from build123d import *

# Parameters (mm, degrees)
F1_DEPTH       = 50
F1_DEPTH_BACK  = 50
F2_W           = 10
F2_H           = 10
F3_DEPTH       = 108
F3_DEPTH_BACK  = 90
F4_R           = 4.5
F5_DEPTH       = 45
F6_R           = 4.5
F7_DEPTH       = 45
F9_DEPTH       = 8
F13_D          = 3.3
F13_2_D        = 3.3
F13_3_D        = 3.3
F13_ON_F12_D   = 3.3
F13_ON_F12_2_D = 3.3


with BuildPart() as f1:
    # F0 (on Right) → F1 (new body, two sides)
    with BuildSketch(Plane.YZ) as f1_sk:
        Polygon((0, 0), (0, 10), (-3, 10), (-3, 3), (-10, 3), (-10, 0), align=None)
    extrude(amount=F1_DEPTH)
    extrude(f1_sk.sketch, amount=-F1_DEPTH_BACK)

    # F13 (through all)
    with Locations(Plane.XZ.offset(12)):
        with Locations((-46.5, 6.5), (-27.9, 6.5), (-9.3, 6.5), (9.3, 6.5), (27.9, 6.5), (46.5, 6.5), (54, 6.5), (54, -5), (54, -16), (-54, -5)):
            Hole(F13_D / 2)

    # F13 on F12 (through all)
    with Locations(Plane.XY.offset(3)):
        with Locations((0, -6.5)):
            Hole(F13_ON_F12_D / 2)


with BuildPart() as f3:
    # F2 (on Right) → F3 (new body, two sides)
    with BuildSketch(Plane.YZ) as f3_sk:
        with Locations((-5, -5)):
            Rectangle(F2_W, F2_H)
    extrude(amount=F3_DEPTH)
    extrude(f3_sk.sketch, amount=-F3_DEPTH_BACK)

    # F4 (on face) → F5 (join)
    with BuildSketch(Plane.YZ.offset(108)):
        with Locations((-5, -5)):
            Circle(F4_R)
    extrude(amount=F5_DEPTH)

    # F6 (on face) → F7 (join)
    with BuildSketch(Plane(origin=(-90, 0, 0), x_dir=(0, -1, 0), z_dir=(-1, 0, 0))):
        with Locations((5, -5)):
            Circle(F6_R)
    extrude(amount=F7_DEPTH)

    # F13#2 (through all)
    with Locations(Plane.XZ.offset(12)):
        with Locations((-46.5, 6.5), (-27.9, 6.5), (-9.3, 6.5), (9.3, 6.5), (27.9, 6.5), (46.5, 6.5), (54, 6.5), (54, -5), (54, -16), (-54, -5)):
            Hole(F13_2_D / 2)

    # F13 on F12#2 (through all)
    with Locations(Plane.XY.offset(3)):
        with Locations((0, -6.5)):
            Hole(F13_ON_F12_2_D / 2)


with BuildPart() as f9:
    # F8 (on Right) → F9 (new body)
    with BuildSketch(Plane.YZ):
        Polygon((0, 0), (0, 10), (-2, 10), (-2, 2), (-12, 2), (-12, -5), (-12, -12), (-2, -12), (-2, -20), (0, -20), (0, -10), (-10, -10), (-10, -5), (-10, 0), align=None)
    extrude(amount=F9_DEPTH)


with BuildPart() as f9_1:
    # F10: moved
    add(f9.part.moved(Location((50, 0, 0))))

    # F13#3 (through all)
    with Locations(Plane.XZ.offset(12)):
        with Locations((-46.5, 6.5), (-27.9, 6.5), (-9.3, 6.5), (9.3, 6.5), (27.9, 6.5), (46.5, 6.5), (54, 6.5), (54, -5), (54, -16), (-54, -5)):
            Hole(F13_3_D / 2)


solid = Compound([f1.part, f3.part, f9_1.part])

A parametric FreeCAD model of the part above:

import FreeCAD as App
import Part
import Sketcher
from FreeCAD import Vector

doc = App.newDocument("Part")
body = doc.addObject("PartDesign::Body", "Body")

# Sketch on YZ plane
sketch1 = doc.addObject("Sketcher::SketchObject", "Sketch")
body.addObject(sketch1)
sketch1.AttachmentSupport = (doc.YZ_Plane, [""])
sketch1.MapMode = "FlatFace"
sketch1.addGeometry(Part.LineSegment(Vector(0, 0, 0), Vector(0, 10, 0)), False)
sketch1.addGeometry(Part.LineSegment(Vector(0, 10, 0), Vector(-3, 10, 0)), False)
sketch1.addGeometry(Part.LineSegment(Vector(-3, 10, 0), Vector(-3, 3, 0)), False)
sketch1.addGeometry(Part.LineSegment(Vector(-3, 3, 0), Vector(-10, 3, 0)), False)
sketch1.addGeometry(Part.LineSegment(Vector(-10, 3, 0), Vector(-10, 0, 0)), False)
sketch1.addGeometry(Part.LineSegment(Vector(-10, 0, 0), Vector(0, 0, 0)), False)
sketch1.addConstraint(Sketcher.Constraint("Coincident", 0, 2, 1, 1))
sketch1.addConstraint(Sketcher.Constraint("Coincident", 1, 2, 2, 1))
sketch1.addConstraint(Sketcher.Constraint("Coincident", 2, 2, 3, 1))
sketch1.addConstraint(Sketcher.Constraint("Coincident", 3, 2, 4, 1))
sketch1.addConstraint(Sketcher.Constraint("Coincident", 4, 2, 5, 1))
sketch1.addConstraint(Sketcher.Constraint("Coincident", 5, 2, 0, 1))
sketch1.addConstraint(Sketcher.Constraint("Vertical", 0))
sketch1.addConstraint(Sketcher.Constraint("Horizontal", 1))
sketch1.addConstraint(Sketcher.Constraint("Vertical", 2))
sketch1.addConstraint(Sketcher.Constraint("Horizontal", 3))
sketch1.addConstraint(Sketcher.Constraint("Vertical", 4))
sketch1.addConstraint(Sketcher.Constraint("Horizontal", 5))
sketch1.addConstraint(Sketcher.Constraint("Coincident", 5, 2, -1, 1))
sketch1.addConstraint(Sketcher.Constraint("Equal", 5, 0))
sketch1.addConstraint(Sketcher.Constraint("Equal", 3, 2))
sketch1.addConstraint(Sketcher.Constraint("DistanceX", 1, 2, 1, 1, 3.0))
sketch1.addConstraint(Sketcher.Constraint("DistanceX", 3, 2, 3, 1, 7.0))
pad1 = doc.addObject("PartDesign::Pad", "Pad")
body.addObject(pad1)
pad1.Profile = sketch1
pad1.Type = "TwoLengths"
pad1.Length = 50
pad1.Length2 = 50

# Sketch on XZ plane
sketch2 = doc.addObject("Sketcher::SketchObject", "Sketch001")
body.addObject(sketch2)
sketch2.AttachmentSupport = (doc.XZ_Plane, [""])
sketch2.MapMode = "FlatFace"
sketch2.AttachmentOffset = App.Placement(Vector(0, 0, 12), App.Rotation())
sketch2.addGeometry(Part.Circle(Vector(-46.5, 6.5, 0), Vector(0, 0, 1), 1.65), False)
sketch2.addGeometry(Part.Circle(Vector(-27.9, 6.5, 0), Vector(0, 0, 1), 1.65), False)
sketch2.addGeometry(Part.Circle(Vector(-9.3, 6.5, 0), Vector(0, 0, 1), 1.65), False)
sketch2.addGeometry(Part.Circle(Vector(9.3, 6.5, 0), Vector(0, 0, 1), 1.65), False)
sketch2.addGeometry(Part.Circle(Vector(27.9, 6.5, 0), Vector(0, 0, 1), 1.65), False)
sketch2.addGeometry(Part.Circle(Vector(46.5, 6.5, 0), Vector(0, 0, 1), 1.65), False)
sketch2.addGeometry(Part.Circle(Vector(54, 6.5, 0), Vector(0, 0, 1), 1.65), False)
sketch2.addGeometry(Part.Circle(Vector(54, -5, 0), Vector(0, 0, 1), 1.65), False)
sketch2.addGeometry(Part.Circle(Vector(54, -16, 0), Vector(0, 0, 1), 1.65), False)
sketch2.addGeometry(Part.Circle(Vector(-54, -5, 0), Vector(0, 0, 1), 1.65), False)
sketch2.addConstraint(Sketcher.Constraint("Equal", 0, 1))
sketch2.addConstraint(Sketcher.Constraint("Equal", 1, 2))
sketch2.addConstraint(Sketcher.Constraint("Equal", 2, 3))
sketch2.addConstraint(Sketcher.Constraint("Equal", 3, 4))
sketch2.addConstraint(Sketcher.Constraint("Equal", 4, 5))
sketch2.addConstraint(Sketcher.Constraint("Equal", 5, 6))
sketch2.addConstraint(Sketcher.Constraint("Equal", 6, 7))
sketch2.addConstraint(Sketcher.Constraint("Equal", 7, 8))
sketch2.addConstraint(Sketcher.Constraint("Equal", 8, 9))
sketch2.addConstraint(Sketcher.Constraint("Symmetric", 2, 3, 3, 3, -2))
sketch2.addConstraint(Sketcher.Constraint("Symmetric", 1, 3, 4, 3, -2))
sketch2.addConstraint(Sketcher.Constraint("Symmetric", 0, 3, 5, 3, -2))
sketch2.addConstraint(Sketcher.Constraint("Symmetric", 7, 3, 9, 3, -2))
sketch2.addConstraint(Sketcher.Constraint("Horizontal", 0, 3, 1, 3))
sketch2.addConstraint(Sketcher.Constraint("Horizontal", 1, 3, 2, 3))
sketch2.addConstraint(Sketcher.Constraint("Horizontal", 5, 3, 6, 3))
sketch2.addConstraint(Sketcher.Constraint("Vertical", 6, 3, 7, 3))
sketch2.addConstraint(Sketcher.Constraint("Vertical", 7, 3, 8, 3))
sketch2.addConstraint(Sketcher.Constraint("Diameter", 0, 3.3))
sketch2.addConstraint(Sketcher.Constraint("DistanceX", -1, 1, 6, 3, 54.0))
sketch2.addConstraint(Sketcher.Constraint("DistanceY", 7, 3, -1, 1, 5.0))
sketch2.addConstraint(Sketcher.Constraint("DistanceY", 8, 3, -1, 1, 16.0))
sketch2.addConstraint(Sketcher.Constraint("DistanceX", 0, 3, 5, 3, 93.0))
sketch2.addConstraint(Sketcher.Constraint("DistanceY", -1, 1, 0, 3, 6.5))
sketch2.addConstraint(Sketcher.Constraint("DistanceX", 1, 3, -1, 1, 27.9))
sketch2.addConstraint(Sketcher.Constraint("DistanceX", 2, 3, -1, 1, 9.3))
doc.recompute()
hole = doc.addObject("PartDesign::Hole", "Hole")
body.addObject(hole)
hole.Profile = sketch2
hole.ThreadType = "None"
hole.Diameter = 3.3
hole.DepthType = "ThroughAll"

# Sketch on XY plane
sketch3 = doc.addObject("Sketcher::SketchObject", "Sketch002")
body.addObject(sketch3)
sketch3.AttachmentSupport = (doc.XY_Plane, [""])
sketch3.MapMode = "FlatFace"
sketch3.AttachmentOffset = App.Placement(Vector(0, 0, 3), App.Rotation())
sketch3.addGeometry(Part.Circle(Vector(0, -6.5, 0), Vector(0, 0, 1), 1.65), False)
sketch3.addConstraint(Sketcher.Constraint("PointOnObject", 0, 3, -2))
sketch3.addConstraint(Sketcher.Constraint("Diameter", 0, 3.3))
sketch3.addConstraint(Sketcher.Constraint("DistanceY", 0, 3, -1, 1, 6.5))
doc.recompute()
hole2 = doc.addObject("PartDesign::Hole", "Hole001")
body.addObject(hole2)
hole2.Profile = sketch3
hole2.ThreadType = "None"
hole2.Diameter = 3.3
hole2.DepthType = "ThroughAll"
body2 = doc.addObject("PartDesign::Body", "Body001")

# Sketch on YZ plane
sketch4 = doc.addObject("Sketcher::SketchObject", "Sketch003")
body2.addObject(sketch4)
sketch4.AttachmentSupport = (doc.getObject("YZ_Plane001"), [""])
sketch4.MapMode = "FlatFace"
sketch4.addGeometry(Part.LineSegment(Vector(-10, 0, 0), Vector(-10, -10, 0)), False)
sketch4.addGeometry(Part.LineSegment(Vector(-10, -10, 0), Vector(0, -10, 0)), False)
sketch4.addGeometry(Part.LineSegment(Vector(0, -10, 0), Vector(0, 0, 0)), False)
sketch4.addGeometry(Part.LineSegment(Vector(0, 0, 0), Vector(-10, 0, 0)), False)
sketch4.addConstraint(Sketcher.Constraint("Coincident", 0, 2, 1, 1))
sketch4.addConstraint(Sketcher.Constraint("Coincident", 1, 2, 2, 1))
sketch4.addConstraint(Sketcher.Constraint("Coincident", 2, 2, 3, 1))
sketch4.addConstraint(Sketcher.Constraint("Coincident", 3, 2, 0, 1))
sketch4.addConstraint(Sketcher.Constraint("Vertical", 0))
sketch4.addConstraint(Sketcher.Constraint("Horizontal", 1))
sketch4.addConstraint(Sketcher.Constraint("Vertical", 2))
sketch4.addConstraint(Sketcher.Constraint("Horizontal", 3))
sketch4.addConstraint(Sketcher.Constraint("Coincident", 2, 2, -1, 1))
sketch4.addConstraint(Sketcher.Constraint("Equal", 3, 0))
sketch4.addConstraint(Sketcher.Constraint("DistanceX", 1, 1, 1, 2, 10.0))
pad2 = doc.addObject("PartDesign::Pad", "Pad001")
body2.addObject(pad2)
pad2.Profile = sketch4
pad2.Type = "TwoLengths"
pad2.Length = 108
pad2.Length2 = 90

# Sketch on YZ plane
sketch5 = doc.addObject("Sketcher::SketchObject", "Sketch004")
body2.addObject(sketch5)
sketch5.AttachmentSupport = (doc.getObject("YZ_Plane001"), [""])
sketch5.MapMode = "FlatFace"
sketch5.AttachmentOffset = App.Placement(Vector(0, 0, 108), App.Rotation())
sketch5.addGeometry(Part.Circle(Vector(-5, -5, 0), Vector(0, 0, 1), 4.5), False)
sketch5.addConstraint(Sketcher.Constraint("Diameter", 0, 9.0))
sketch5.addConstraint(Sketcher.Constraint("DistanceX", 0, 3, -1, 1, 5.0))
sketch5.addConstraint(Sketcher.Constraint("DistanceY", 0, 3, -1, 1, 5.0))
pad3 = doc.addObject("PartDesign::Pad", "Pad002")
body2.addObject(pad3)
pad3.Profile = sketch5
pad3.Length = 45

# Sketch on YZ plane
sketch6 = doc.addObject("Sketcher::SketchObject", "Sketch005")
body2.addObject(sketch6)
sketch6.AttachmentSupport = (doc.getObject("YZ_Plane001"), [""])
sketch6.MapMode = "FlatFace"
sketch6.AttachmentOffset = App.Placement(Vector(0, 0, -90), App.Rotation())
sketch6.addGeometry(Part.Circle(Vector(-5, -5, 0), Vector(0, 0, 1), 4.5), False)
sketch6.addConstraint(Sketcher.Constraint("Diameter", 0, 9.0))
sketch6.addConstraint(Sketcher.Constraint("DistanceX", 0, 3, -1, 1, 5.0))
sketch6.addConstraint(Sketcher.Constraint("DistanceY", 0, 3, -1, 1, 5.0))
pad4 = doc.addObject("PartDesign::Pad", "Pad003")
body2.addObject(pad4)
pad4.Profile = sketch6
pad4.Length = 45
pad4.Reversed = True

# Sketch on XZ plane
sketch7 = doc.addObject("Sketcher::SketchObject", "Sketch006")
body2.addObject(sketch7)
sketch7.AttachmentSupport = (doc.getObject("XZ_Plane001"), [""])
sketch7.MapMode = "FlatFace"
sketch7.AttachmentOffset = App.Placement(Vector(0, 0, 12), App.Rotation())
sketch7.addGeometry(Part.Circle(Vector(-46.5, 6.5, 0), Vector(0, 0, 1), 1.65), False)
sketch7.addGeometry(Part.Circle(Vector(-27.9, 6.5, 0), Vector(0, 0, 1), 1.65), False)
sketch7.addGeometry(Part.Circle(Vector(-9.3, 6.5, 0), Vector(0, 0, 1), 1.65), False)
sketch7.addGeometry(Part.Circle(Vector(9.3, 6.5, 0), Vector(0, 0, 1), 1.65), False)
sketch7.addGeometry(Part.Circle(Vector(27.9, 6.5, 0), Vector(0, 0, 1), 1.65), False)
sketch7.addGeometry(Part.Circle(Vector(46.5, 6.5, 0), Vector(0, 0, 1), 1.65), False)
sketch7.addGeometry(Part.Circle(Vector(54, 6.5, 0), Vector(0, 0, 1), 1.65), False)
sketch7.addGeometry(Part.Circle(Vector(54, -5, 0), Vector(0, 0, 1), 1.65), False)
sketch7.addGeometry(Part.Circle(Vector(54, -16, 0), Vector(0, 0, 1), 1.65), False)
sketch7.addGeometry(Part.Circle(Vector(-54, -5, 0), Vector(0, 0, 1), 1.65), False)
sketch7.addConstraint(Sketcher.Constraint("Equal", 0, 1))
sketch7.addConstraint(Sketcher.Constraint("Equal", 1, 2))
sketch7.addConstraint(Sketcher.Constraint("Equal", 2, 3))
sketch7.addConstraint(Sketcher.Constraint("Equal", 3, 4))
sketch7.addConstraint(Sketcher.Constraint("Equal", 4, 5))
sketch7.addConstraint(Sketcher.Constraint("Equal", 5, 6))
sketch7.addConstraint(Sketcher.Constraint("Equal", 6, 7))
sketch7.addConstraint(Sketcher.Constraint("Equal", 7, 8))
sketch7.addConstraint(Sketcher.Constraint("Equal", 8, 9))
sketch7.addConstraint(Sketcher.Constraint("Symmetric", 2, 3, 3, 3, -2))
sketch7.addConstraint(Sketcher.Constraint("Symmetric", 1, 3, 4, 3, -2))
sketch7.addConstraint(Sketcher.Constraint("Symmetric", 0, 3, 5, 3, -2))
sketch7.addConstraint(Sketcher.Constraint("Symmetric", 7, 3, 9, 3, -2))
sketch7.addConstraint(Sketcher.Constraint("Horizontal", 0, 3, 1, 3))
sketch7.addConstraint(Sketcher.Constraint("Horizontal", 1, 3, 2, 3))
sketch7.addConstraint(Sketcher.Constraint("Horizontal", 5, 3, 6, 3))
sketch7.addConstraint(Sketcher.Constraint("Vertical", 6, 3, 7, 3))
sketch7.addConstraint(Sketcher.Constraint("Vertical", 7, 3, 8, 3))
sketch7.addConstraint(Sketcher.Constraint("Diameter", 0, 3.3))
sketch7.addConstraint(Sketcher.Constraint("DistanceX", -1, 1, 6, 3, 54.0))
sketch7.addConstraint(Sketcher.Constraint("DistanceY", 7, 3, -1, 1, 5.0))
sketch7.addConstraint(Sketcher.Constraint("DistanceY", 8, 3, -1, 1, 16.0))
sketch7.addConstraint(Sketcher.Constraint("DistanceX", 0, 3, 5, 3, 93.0))
sketch7.addConstraint(Sketcher.Constraint("DistanceY", -1, 1, 0, 3, 6.5))
sketch7.addConstraint(Sketcher.Constraint("DistanceX", 1, 3, -1, 1, 27.9))
sketch7.addConstraint(Sketcher.Constraint("DistanceX", 2, 3, -1, 1, 9.3))
doc.recompute()
hole3 = doc.addObject("PartDesign::Hole", "Hole002")
body2.addObject(hole3)
hole3.Profile = sketch7
hole3.ThreadType = "None"
hole3.Diameter = 3.3
hole3.DepthType = "ThroughAll"

# Sketch on XY plane
sketch8 = doc.addObject("Sketcher::SketchObject", "Sketch007")
body2.addObject(sketch8)
sketch8.AttachmentSupport = (doc.getObject("XY_Plane001"), [""])
sketch8.MapMode = "FlatFace"
sketch8.AttachmentOffset = App.Placement(Vector(0, 0, 3), App.Rotation())
sketch8.addGeometry(Part.Circle(Vector(0, -6.5, 0), Vector(0, 0, 1), 1.65), False)
sketch8.addConstraint(Sketcher.Constraint("PointOnObject", 0, 3, -2))
sketch8.addConstraint(Sketcher.Constraint("Diameter", 0, 3.3))
sketch8.addConstraint(Sketcher.Constraint("DistanceY", 0, 3, -1, 1, 6.5))
doc.recompute()
hole4 = doc.addObject("PartDesign::Hole", "Hole003")
body2.addObject(hole4)
hole4.Profile = sketch8
hole4.ThreadType = "None"
hole4.Diameter = 3.3
hole4.DepthType = "ThroughAll"
body3 = doc.addObject("PartDesign::Body", "Body002")

# Sketch on YZ plane
sketch9 = doc.addObject("Sketcher::SketchObject", "Sketch008")
body3.addObject(sketch9)
sketch9.AttachmentSupport = (doc.getObject("YZ_Plane002"), [""])
sketch9.MapMode = "FlatFace"
sketch9.addGeometry(Part.LineSegment(Vector(0, 0, 0), Vector(0, 10, 0)), False)
sketch9.addGeometry(Part.LineSegment(Vector(0, 10, 0), Vector(-2, 10, 0)), False)
sketch9.addGeometry(Part.LineSegment(Vector(-2, 10, 0), Vector(-2, 2, 0)), False)
sketch9.addGeometry(Part.LineSegment(Vector(-2, 2, 0), Vector(-12, 2, 0)), False)
sketch9.addGeometry(Part.LineSegment(Vector(-12, 2, 0), Vector(-12, -12, 0)), False)
sketch9.addGeometry(Part.LineSegment(Vector(-12, -12, 0), Vector(-2, -12, 0)), False)
sketch9.addGeometry(Part.LineSegment(Vector(-2, -12, 0), Vector(-2, -20, 0)), False)
sketch9.addGeometry(Part.LineSegment(Vector(-2, -20, 0), Vector(0, -20, 0)), False)
sketch9.addGeometry(Part.LineSegment(Vector(0, -20, 0), Vector(0, -10, 0)), False)
sketch9.addGeometry(Part.LineSegment(Vector(0, -10, 0), Vector(-10, -10, 0)), False)
sketch9.addGeometry(Part.LineSegment(Vector(-10, -10, 0), Vector(-10, 0, 0)), False)
sketch9.addGeometry(Part.LineSegment(Vector(-10, 0, 0), Vector(0, 0, 0)), False)
sketch9.addConstraint(Sketcher.Constraint("Coincident", 0, 2, 1, 1))
sketch9.addConstraint(Sketcher.Constraint("Coincident", 1, 2, 2, 1))
sketch9.addConstraint(Sketcher.Constraint("Coincident", 2, 2, 3, 1))
sketch9.addConstraint(Sketcher.Constraint("Coincident", 3, 2, 4, 1))
sketch9.addConstraint(Sketcher.Constraint("Coincident", 4, 2, 5, 1))
sketch9.addConstraint(Sketcher.Constraint("Coincident", 5, 2, 6, 1))
sketch9.addConstraint(Sketcher.Constraint("Coincident", 6, 2, 7, 1))
sketch9.addConstraint(Sketcher.Constraint("Coincident", 7, 2, 8, 1))
sketch9.addConstraint(Sketcher.Constraint("Coincident", 8, 2, 9, 1))
sketch9.addConstraint(Sketcher.Constraint("Coincident", 9, 2, 10, 1))
sketch9.addConstraint(Sketcher.Constraint("Coincident", 10, 2, 11, 1))
sketch9.addConstraint(Sketcher.Constraint("Coincident", 11, 2, 0, 1))
sketch9.addConstraint(Sketcher.Constraint("Vertical", 0))
sketch9.addConstraint(Sketcher.Constraint("Horizontal", 1))
sketch9.addConstraint(Sketcher.Constraint("Vertical", 2))
sketch9.addConstraint(Sketcher.Constraint("Horizontal", 3))
sketch9.addConstraint(Sketcher.Constraint("Vertical", 4))
sketch9.addConstraint(Sketcher.Constraint("Horizontal", 5))
sketch9.addConstraint(Sketcher.Constraint("Vertical", 6))
sketch9.addConstraint(Sketcher.Constraint("Horizontal", 7))
sketch9.addConstraint(Sketcher.Constraint("Vertical", 8))
sketch9.addConstraint(Sketcher.Constraint("Horizontal", 9))
sketch9.addConstraint(Sketcher.Constraint("Vertical", 10))
sketch9.addConstraint(Sketcher.Constraint("Horizontal", 11))
sketch9.addConstraint(Sketcher.Constraint("Coincident", 11, 2, -1, 1))
sketch9.addConstraint(Sketcher.Constraint("Symmetric", 0, 2, 8, 2, -1, 1))
sketch9.addConstraint(Sketcher.Constraint("Vertical", 2, 2, 5, 2))
sketch9.addConstraint(Sketcher.Constraint("Equal", 5, 9))
sketch9.addConstraint(Sketcher.Constraint("Equal", 11, 0))
sketch9.addConstraint(Sketcher.Constraint("Equal", 2, 6))
sketch9.addConstraint(Sketcher.Constraint("Equal", 0, 8))
sketch9.addConstraint(Sketcher.Constraint("DistanceX", 1, 2, 1, 1, 2.0))
sketch9.addConstraint(Sketcher.Constraint("DistanceX", 3, 2, 3, 1, 10.0))
sketch9.addConstraint(Sketcher.Constraint("DistanceY", 2, 2, 2, 1, 8.0))
pad5 = doc.addObject("PartDesign::Pad", "Pad004")
body3.addObject(pad5)
pad5.Profile = sketch9
pad5.Length = 8
body4 = doc.addObject("PartDesign::Body", "Body003")
doc.recompute()

body3.Placement = App.Placement(Vector(50, 0, 0), App.Rotation(Vector(0, 0, 1), 0))
boolean = doc.addObject("PartDesign::Boolean", "Boolean")
body4.addObject(boolean)
boolean.Type = "Fuse"
boolean.addObjects([body3])

# Sketch on XZ plane
sketch10 = doc.addObject("Sketcher::SketchObject", "Sketch009")
body4.addObject(sketch10)
sketch10.AttachmentSupport = (doc.getObject("XZ_Plane003"), [""])
sketch10.MapMode = "FlatFace"
sketch10.AttachmentOffset = App.Placement(Vector(0, 0, 12), App.Rotation())
sketch10.addGeometry(Part.Circle(Vector(-46.5, 6.5, 0), Vector(0, 0, 1), 1.65), False)
sketch10.addGeometry(Part.Circle(Vector(-27.9, 6.5, 0), Vector(0, 0, 1), 1.65), False)
sketch10.addGeometry(Part.Circle(Vector(-9.3, 6.5, 0), Vector(0, 0, 1), 1.65), False)
sketch10.addGeometry(Part.Circle(Vector(9.3, 6.5, 0), Vector(0, 0, 1), 1.65), False)
sketch10.addGeometry(Part.Circle(Vector(27.9, 6.5, 0), Vector(0, 0, 1), 1.65), False)
sketch10.addGeometry(Part.Circle(Vector(46.5, 6.5, 0), Vector(0, 0, 1), 1.65), False)
sketch10.addGeometry(Part.Circle(Vector(54, 6.5, 0), Vector(0, 0, 1), 1.65), False)
sketch10.addGeometry(Part.Circle(Vector(54, -5, 0), Vector(0, 0, 1), 1.65), False)
sketch10.addGeometry(Part.Circle(Vector(54, -16, 0), Vector(0, 0, 1), 1.65), False)
sketch10.addGeometry(Part.Circle(Vector(-54, -5, 0), Vector(0, 0, 1), 1.65), False)
sketch10.addConstraint(Sketcher.Constraint("Equal", 0, 1))
sketch10.addConstraint(Sketcher.Constraint("Equal", 1, 2))
sketch10.addConstraint(Sketcher.Constraint("Equal", 2, 3))
sketch10.addConstraint(Sketcher.Constraint("Equal", 3, 4))
sketch10.addConstraint(Sketcher.Constraint("Equal", 4, 5))
sketch10.addConstraint(Sketcher.Constraint("Equal", 5, 6))
sketch10.addConstraint(Sketcher.Constraint("Equal", 6, 7))
sketch10.addConstraint(Sketcher.Constraint("Equal", 7, 8))
sketch10.addConstraint(Sketcher.Constraint("Equal", 8, 9))
sketch10.addConstraint(Sketcher.Constraint("Symmetric", 2, 3, 3, 3, -2))
sketch10.addConstraint(Sketcher.Constraint("Symmetric", 1, 3, 4, 3, -2))
sketch10.addConstraint(Sketcher.Constraint("Symmetric", 0, 3, 5, 3, -2))
sketch10.addConstraint(Sketcher.Constraint("Symmetric", 7, 3, 9, 3, -2))
sketch10.addConstraint(Sketcher.Constraint("Horizontal", 0, 3, 1, 3))
sketch10.addConstraint(Sketcher.Constraint("Horizontal", 1, 3, 2, 3))
sketch10.addConstraint(Sketcher.Constraint("Horizontal", 5, 3, 6, 3))
sketch10.addConstraint(Sketcher.Constraint("Vertical", 6, 3, 7, 3))
sketch10.addConstraint(Sketcher.Constraint("Vertical", 7, 3, 8, 3))
sketch10.addConstraint(Sketcher.Constraint("Diameter", 0, 3.3))
sketch10.addConstraint(Sketcher.Constraint("DistanceX", -1, 1, 6, 3, 54.0))
sketch10.addConstraint(Sketcher.Constraint("DistanceY", 7, 3, -1, 1, 5.0))
sketch10.addConstraint(Sketcher.Constraint("DistanceY", 8, 3, -1, 1, 16.0))
sketch10.addConstraint(Sketcher.Constraint("DistanceX", 0, 3, 5, 3, 93.0))
sketch10.addConstraint(Sketcher.Constraint("DistanceY", -1, 1, 0, 3, 6.5))
sketch10.addConstraint(Sketcher.Constraint("DistanceX", 1, 3, -1, 1, 27.9))
sketch10.addConstraint(Sketcher.Constraint("DistanceX", 2, 3, -1, 1, 9.3))
doc.recompute()
hole5 = doc.addObject("PartDesign::Hole", "Hole004")
body4.addObject(hole5)
hole5.Profile = sketch10
hole5.ThreadType = "None"
hole5.Diameter = 3.3
hole5.DepthType = "ThroughAll"

doc.recompute()
